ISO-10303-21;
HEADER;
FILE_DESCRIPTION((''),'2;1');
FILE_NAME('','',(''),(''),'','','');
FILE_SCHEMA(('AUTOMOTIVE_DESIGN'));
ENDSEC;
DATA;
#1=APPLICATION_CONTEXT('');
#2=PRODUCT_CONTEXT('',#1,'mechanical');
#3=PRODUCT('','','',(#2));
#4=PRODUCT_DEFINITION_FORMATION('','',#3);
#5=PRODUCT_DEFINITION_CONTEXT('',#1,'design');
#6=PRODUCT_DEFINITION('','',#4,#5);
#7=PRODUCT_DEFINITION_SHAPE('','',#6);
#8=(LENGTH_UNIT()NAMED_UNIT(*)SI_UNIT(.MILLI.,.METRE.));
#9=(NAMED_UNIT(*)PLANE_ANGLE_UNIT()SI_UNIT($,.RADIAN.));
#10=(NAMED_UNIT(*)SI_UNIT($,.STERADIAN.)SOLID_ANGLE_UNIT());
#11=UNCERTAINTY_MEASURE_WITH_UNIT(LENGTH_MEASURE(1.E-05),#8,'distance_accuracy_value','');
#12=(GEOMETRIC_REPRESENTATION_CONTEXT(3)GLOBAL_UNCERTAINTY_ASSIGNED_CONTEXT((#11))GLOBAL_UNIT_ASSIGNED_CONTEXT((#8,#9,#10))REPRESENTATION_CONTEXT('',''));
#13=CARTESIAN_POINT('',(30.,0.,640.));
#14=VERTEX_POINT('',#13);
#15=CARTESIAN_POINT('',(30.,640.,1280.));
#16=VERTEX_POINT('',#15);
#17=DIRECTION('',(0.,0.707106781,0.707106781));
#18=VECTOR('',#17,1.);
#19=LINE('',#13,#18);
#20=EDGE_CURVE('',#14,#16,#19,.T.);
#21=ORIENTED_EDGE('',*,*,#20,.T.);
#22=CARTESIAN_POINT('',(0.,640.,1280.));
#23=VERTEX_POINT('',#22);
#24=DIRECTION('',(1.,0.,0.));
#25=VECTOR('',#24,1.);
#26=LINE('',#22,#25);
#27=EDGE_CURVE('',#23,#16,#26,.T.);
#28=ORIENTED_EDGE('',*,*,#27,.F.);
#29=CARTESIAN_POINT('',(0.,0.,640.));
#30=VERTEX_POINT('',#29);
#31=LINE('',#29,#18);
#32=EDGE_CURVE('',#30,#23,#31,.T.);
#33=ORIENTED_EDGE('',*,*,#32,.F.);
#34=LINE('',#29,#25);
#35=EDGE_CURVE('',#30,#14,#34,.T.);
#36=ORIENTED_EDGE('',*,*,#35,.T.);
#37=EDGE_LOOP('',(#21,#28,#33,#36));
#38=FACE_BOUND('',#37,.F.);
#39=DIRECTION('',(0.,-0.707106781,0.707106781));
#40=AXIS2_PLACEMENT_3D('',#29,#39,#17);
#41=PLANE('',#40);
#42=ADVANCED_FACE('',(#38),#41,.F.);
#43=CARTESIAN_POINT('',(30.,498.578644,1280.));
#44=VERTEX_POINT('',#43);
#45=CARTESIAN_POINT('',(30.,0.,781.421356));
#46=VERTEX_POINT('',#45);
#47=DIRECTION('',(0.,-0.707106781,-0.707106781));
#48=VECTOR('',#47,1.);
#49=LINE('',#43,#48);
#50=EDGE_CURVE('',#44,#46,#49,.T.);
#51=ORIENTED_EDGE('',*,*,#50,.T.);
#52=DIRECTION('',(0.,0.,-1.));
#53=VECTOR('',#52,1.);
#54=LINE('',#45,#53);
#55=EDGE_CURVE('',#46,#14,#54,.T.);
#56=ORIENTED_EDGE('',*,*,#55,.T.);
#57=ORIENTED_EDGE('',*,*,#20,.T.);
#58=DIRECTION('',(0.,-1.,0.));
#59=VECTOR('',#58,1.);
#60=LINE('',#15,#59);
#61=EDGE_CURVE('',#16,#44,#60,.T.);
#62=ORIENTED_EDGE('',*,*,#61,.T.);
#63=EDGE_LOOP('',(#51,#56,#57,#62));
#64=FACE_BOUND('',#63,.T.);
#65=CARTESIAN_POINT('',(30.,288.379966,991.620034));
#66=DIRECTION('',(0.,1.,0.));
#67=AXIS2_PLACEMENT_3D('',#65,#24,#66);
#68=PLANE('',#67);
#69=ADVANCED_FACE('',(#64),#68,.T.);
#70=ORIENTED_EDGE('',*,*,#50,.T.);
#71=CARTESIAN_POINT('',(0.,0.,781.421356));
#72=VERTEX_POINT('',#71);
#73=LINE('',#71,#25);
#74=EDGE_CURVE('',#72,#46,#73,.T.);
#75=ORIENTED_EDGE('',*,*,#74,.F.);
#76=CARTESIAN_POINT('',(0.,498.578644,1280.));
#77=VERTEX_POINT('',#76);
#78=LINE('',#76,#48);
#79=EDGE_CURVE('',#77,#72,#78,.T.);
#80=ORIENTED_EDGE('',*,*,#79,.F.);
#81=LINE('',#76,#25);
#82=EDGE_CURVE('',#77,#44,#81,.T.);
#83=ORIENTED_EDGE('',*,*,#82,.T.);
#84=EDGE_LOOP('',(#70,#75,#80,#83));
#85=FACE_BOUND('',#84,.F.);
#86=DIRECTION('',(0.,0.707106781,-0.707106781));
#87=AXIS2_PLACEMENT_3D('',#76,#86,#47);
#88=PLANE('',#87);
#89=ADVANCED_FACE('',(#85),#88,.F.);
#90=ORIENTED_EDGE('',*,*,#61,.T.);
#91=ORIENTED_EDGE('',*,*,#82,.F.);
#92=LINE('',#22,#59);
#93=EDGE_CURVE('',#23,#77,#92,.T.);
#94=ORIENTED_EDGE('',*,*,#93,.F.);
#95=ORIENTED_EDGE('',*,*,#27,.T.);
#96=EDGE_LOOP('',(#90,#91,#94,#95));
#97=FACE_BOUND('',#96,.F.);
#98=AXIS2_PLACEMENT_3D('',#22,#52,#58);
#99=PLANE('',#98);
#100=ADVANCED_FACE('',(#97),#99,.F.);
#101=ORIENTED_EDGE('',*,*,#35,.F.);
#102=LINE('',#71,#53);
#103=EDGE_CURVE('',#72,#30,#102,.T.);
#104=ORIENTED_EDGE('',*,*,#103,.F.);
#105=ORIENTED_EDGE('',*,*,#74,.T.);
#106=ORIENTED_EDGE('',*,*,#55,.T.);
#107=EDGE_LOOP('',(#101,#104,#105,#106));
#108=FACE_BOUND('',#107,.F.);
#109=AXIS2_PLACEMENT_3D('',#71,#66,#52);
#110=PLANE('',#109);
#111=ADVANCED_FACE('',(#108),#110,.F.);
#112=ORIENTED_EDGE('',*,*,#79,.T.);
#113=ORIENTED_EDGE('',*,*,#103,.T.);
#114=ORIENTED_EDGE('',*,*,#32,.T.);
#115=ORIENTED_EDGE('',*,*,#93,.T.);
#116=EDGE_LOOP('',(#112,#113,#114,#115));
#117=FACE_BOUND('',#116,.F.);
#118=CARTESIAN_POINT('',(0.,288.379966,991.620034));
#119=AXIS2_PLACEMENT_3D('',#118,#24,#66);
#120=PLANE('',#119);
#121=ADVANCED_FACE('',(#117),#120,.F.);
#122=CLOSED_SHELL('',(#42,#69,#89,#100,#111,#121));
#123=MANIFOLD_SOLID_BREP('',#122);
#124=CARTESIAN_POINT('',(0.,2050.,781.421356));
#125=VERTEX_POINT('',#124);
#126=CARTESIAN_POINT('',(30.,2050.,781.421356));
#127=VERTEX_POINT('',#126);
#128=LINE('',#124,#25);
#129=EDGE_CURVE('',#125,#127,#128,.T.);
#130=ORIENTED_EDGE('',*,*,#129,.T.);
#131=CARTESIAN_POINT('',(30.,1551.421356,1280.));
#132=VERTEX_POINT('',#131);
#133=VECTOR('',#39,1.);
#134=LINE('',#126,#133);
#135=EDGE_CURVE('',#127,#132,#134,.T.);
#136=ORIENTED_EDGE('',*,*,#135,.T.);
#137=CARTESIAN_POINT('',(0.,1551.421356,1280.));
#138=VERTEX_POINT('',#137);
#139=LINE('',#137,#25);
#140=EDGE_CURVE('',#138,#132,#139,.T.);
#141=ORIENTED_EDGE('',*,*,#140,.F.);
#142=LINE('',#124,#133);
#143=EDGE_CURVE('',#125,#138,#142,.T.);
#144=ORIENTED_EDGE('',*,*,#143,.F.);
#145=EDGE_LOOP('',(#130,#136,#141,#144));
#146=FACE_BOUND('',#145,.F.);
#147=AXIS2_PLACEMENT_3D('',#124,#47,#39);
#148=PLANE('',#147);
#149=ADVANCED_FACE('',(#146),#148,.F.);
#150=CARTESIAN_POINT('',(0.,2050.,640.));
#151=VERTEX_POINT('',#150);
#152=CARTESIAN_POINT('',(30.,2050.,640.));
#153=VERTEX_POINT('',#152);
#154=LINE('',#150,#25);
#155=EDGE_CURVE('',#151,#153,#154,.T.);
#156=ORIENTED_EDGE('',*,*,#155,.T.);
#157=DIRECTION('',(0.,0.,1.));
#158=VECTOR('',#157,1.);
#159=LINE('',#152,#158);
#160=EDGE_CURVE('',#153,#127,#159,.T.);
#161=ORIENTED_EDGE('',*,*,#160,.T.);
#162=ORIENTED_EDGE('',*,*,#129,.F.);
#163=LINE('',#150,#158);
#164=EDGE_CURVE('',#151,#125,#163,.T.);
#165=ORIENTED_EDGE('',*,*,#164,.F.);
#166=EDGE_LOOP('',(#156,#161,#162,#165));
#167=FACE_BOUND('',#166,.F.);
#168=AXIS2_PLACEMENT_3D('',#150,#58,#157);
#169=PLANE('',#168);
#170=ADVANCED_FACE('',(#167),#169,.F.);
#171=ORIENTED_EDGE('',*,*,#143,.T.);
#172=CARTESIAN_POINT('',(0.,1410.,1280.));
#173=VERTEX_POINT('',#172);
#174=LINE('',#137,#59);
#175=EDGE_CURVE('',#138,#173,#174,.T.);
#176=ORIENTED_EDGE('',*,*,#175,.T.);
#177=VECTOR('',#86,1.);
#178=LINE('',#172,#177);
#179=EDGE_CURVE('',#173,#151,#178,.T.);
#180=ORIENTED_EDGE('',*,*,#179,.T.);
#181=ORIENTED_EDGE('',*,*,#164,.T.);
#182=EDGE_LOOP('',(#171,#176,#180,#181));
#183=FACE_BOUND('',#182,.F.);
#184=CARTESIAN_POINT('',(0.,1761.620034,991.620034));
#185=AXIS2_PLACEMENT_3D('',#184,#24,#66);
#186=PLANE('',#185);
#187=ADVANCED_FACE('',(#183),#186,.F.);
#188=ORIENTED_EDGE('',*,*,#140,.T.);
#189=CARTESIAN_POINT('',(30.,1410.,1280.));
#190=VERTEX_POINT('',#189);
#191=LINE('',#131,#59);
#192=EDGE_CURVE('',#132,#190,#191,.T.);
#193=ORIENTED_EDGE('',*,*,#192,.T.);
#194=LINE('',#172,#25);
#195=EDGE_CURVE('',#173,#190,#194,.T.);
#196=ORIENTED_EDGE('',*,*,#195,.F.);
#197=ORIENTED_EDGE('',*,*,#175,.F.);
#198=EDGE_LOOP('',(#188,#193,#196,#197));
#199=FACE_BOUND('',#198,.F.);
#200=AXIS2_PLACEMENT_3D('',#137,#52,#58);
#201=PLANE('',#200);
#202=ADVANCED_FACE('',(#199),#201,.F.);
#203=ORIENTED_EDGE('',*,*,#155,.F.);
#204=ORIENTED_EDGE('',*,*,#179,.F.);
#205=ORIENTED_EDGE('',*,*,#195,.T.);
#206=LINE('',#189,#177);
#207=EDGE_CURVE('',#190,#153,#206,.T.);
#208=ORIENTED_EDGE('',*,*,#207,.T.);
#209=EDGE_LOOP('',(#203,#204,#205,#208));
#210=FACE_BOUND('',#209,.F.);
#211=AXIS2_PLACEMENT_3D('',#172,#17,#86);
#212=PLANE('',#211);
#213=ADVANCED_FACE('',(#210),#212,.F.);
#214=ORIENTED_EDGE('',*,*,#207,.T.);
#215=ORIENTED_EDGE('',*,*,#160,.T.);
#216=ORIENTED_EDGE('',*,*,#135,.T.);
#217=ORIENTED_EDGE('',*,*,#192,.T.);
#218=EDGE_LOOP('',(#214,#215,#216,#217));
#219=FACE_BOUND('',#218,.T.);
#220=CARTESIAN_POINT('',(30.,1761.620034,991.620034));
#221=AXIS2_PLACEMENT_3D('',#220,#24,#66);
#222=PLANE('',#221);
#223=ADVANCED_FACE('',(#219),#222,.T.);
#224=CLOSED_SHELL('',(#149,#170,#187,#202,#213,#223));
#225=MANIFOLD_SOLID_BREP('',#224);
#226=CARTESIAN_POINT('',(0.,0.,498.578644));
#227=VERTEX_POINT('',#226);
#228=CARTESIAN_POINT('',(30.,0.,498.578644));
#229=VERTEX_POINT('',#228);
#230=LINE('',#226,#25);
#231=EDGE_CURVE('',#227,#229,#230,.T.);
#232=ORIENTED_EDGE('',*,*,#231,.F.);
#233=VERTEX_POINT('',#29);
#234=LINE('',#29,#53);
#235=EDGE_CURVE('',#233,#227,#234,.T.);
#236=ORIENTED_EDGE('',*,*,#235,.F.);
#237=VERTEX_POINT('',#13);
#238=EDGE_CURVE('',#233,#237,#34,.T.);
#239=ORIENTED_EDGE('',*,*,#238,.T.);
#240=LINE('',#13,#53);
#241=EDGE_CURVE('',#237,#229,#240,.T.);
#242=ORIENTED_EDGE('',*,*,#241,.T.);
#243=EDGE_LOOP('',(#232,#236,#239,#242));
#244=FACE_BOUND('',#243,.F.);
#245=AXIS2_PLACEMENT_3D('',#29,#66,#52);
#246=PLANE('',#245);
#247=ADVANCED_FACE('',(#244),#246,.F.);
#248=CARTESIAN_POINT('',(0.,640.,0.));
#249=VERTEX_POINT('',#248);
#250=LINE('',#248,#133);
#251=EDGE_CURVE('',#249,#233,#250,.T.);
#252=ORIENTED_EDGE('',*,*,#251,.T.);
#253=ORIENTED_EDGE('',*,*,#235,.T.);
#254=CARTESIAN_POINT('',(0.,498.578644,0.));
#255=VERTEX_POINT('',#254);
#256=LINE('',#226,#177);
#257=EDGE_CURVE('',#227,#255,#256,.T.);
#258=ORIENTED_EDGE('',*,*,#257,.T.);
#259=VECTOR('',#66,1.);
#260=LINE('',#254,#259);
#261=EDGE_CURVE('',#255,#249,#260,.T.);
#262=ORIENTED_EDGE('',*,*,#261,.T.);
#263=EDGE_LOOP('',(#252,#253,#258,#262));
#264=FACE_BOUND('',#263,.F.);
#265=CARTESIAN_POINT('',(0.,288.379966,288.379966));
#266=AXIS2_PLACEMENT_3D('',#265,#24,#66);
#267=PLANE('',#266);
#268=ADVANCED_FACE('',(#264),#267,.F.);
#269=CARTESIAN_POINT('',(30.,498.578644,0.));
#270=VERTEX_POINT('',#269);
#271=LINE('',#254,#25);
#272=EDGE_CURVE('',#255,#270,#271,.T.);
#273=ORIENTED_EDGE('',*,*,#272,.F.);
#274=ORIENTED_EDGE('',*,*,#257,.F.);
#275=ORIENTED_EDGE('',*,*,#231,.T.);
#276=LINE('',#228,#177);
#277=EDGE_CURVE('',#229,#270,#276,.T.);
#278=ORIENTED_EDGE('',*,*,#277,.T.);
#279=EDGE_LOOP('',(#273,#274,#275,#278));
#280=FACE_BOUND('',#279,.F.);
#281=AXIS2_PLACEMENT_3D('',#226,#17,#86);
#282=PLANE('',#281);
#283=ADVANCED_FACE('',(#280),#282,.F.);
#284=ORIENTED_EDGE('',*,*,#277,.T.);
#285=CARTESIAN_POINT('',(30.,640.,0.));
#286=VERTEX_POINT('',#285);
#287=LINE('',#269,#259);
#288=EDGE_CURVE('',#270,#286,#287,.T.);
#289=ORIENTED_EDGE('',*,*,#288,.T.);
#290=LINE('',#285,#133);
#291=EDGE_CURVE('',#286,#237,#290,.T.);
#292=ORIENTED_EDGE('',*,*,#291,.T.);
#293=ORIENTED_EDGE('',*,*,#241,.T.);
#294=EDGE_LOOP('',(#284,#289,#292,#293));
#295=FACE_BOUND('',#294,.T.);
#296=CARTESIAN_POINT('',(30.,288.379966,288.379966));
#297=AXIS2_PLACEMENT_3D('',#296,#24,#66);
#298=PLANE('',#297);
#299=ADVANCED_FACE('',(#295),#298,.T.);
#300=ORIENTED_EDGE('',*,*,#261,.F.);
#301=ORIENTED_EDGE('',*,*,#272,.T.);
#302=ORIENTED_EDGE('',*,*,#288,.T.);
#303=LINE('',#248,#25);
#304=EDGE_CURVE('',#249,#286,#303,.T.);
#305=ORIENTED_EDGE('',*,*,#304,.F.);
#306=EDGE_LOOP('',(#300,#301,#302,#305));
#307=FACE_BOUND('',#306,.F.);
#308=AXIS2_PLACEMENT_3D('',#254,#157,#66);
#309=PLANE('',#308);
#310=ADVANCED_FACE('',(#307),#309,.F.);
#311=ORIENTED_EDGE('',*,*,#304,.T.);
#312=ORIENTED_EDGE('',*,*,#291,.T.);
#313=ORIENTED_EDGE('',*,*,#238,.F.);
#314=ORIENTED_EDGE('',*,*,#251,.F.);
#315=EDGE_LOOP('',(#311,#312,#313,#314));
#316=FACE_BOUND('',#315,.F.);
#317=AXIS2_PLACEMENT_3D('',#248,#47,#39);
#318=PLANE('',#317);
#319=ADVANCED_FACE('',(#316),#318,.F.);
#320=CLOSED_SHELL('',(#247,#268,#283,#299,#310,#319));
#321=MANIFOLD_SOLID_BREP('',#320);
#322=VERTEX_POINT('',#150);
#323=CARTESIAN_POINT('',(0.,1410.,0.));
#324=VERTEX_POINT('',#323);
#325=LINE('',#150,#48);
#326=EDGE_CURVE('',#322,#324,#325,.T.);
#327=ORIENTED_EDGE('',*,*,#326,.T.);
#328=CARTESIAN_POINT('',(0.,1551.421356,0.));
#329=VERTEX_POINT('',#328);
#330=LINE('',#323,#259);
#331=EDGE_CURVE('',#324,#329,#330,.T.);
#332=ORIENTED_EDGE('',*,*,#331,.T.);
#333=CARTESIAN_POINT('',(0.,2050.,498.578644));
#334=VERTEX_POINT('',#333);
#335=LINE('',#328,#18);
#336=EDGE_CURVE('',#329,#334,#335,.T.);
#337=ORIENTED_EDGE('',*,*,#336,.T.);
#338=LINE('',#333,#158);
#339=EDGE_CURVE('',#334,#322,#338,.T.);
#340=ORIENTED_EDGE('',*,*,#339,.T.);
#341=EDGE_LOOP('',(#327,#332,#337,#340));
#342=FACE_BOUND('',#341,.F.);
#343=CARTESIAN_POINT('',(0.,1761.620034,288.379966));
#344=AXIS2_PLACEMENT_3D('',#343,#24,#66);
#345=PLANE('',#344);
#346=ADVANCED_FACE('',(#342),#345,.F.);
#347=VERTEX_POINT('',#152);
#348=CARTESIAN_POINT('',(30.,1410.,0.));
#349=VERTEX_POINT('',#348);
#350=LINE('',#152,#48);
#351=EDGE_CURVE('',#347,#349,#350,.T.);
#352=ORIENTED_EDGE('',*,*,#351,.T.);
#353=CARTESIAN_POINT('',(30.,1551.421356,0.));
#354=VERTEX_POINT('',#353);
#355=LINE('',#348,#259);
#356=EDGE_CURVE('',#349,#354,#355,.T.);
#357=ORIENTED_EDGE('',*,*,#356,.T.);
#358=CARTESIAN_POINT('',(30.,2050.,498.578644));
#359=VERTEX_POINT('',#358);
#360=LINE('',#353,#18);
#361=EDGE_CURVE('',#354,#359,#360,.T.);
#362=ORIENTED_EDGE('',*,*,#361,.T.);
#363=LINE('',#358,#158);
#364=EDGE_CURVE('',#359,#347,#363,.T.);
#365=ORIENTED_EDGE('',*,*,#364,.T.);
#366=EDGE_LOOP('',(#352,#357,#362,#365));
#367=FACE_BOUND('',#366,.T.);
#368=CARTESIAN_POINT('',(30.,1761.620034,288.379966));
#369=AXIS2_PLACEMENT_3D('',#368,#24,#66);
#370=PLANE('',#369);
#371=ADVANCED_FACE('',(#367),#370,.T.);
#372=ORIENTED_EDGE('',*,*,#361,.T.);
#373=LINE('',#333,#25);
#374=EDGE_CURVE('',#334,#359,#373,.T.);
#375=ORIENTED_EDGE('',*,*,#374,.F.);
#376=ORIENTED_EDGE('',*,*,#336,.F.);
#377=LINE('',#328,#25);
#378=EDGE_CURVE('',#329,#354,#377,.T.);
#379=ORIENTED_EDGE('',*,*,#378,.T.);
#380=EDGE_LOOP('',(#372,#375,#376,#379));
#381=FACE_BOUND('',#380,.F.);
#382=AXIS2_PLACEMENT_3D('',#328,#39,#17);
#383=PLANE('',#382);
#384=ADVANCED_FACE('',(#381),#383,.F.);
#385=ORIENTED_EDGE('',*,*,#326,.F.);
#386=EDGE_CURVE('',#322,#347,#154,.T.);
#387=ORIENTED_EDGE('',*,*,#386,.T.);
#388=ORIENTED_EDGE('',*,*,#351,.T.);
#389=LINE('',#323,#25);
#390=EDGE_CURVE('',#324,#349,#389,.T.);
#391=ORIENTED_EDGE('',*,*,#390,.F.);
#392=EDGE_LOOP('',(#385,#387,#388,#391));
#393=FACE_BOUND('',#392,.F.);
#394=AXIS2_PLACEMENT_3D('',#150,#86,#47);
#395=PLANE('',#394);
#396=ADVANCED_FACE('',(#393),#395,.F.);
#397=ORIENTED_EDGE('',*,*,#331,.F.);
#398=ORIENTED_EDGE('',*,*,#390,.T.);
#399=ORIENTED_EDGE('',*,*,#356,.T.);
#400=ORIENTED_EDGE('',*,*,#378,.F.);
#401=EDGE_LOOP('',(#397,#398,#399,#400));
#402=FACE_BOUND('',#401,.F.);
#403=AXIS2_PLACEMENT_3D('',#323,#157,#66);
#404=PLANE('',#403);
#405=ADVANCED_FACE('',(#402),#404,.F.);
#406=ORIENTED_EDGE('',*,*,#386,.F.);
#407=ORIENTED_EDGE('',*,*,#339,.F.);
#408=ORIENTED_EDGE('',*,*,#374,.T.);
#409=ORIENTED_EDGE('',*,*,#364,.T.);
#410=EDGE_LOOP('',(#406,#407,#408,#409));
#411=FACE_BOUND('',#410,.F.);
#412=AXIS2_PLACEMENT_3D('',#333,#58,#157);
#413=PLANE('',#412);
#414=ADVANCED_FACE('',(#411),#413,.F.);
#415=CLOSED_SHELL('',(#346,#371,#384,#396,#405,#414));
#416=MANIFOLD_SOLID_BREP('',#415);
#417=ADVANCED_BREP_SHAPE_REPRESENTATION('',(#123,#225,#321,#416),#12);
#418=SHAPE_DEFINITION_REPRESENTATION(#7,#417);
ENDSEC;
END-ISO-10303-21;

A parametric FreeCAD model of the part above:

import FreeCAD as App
import Part
import Sketcher
Q = App.Units.Quantity


def add_polygon(sketch, points):
    """Adds a closed chain of lines whose ends are joined by coincident constraints."""
    first, n = sketch.GeometryCount, len(points)
    for a, b in zip(points, points[1:] + points[:1]):
        sketch.addGeometry(Part.LineSegment(App.Vector(*a, 0), App.Vector(*b, 0)), False)
    for i in range(n):
        sketch.addConstraint(Sketcher.Constraint("Coincident", first + i, 2, first + (i + 1) % n, 1))

doc = App.newDocument("Part")
params = doc.addObject("Spreadsheet::Sheet", "Params")
for row, (alias, value) in enumerate([
    ("pad1_length", "30 mm"),
], start=1):
    params.set(f"A{row}", alias)
    params.set(f"B{row}", "=" + value)
    params.setAlias(f"B{row}", alias)

body = doc.addObject("PartDesign::Body", "Body")
body.AllowCompound = True

# Sketch on YZ plane
sketch1 = body.newObject("Sketcher::SketchObject", "Sketch")
sketch1.AttachmentSupport = (doc.getObject("YZ_Plane"), [""])
sketch1.MapMode = "FlatFace"
add_polygon(sketch1, [(0, 781.421356), (0, 640), (640, 1280), (498.578644, 1280)])  # lines 0-3
add_polygon(sketch1, [(0, 640), (0, 498.578644), (498.578644, 0), (640, 0)])  # lines 4-7
add_polygon(sketch1, [(2050, 498.578644), (2050, 640), (1410, 0), (1551.421356, 0)])  # lines 8-11
add_polygon(sketch1, [(2050, 781.421356), (1551.421356, 1280), (1410, 1280), (2050, 640)])  # lines 12-15
sketch1.addConstraint(Sketcher.Constraint("Vertical", 0))
sketch1.addConstraint(Sketcher.Constraint("Horizontal", 2))
sketch1.addConstraint(Sketcher.Constraint("Vertical", 4))
sketch1.addConstraint(Sketcher.Constraint("Horizontal", 6))
sketch1.addConstraint(Sketcher.Constraint("Vertical", 8))
sketch1.addConstraint(Sketcher.Constraint("Horizontal", 10))
sketch1.addConstraint(Sketcher.Constraint("Horizontal", 13))
sketch1.addConstraint(Sketcher.Constraint("Vertical", 15))
sketch1.addConstraint(Sketcher.Constraint("Coincident", 7, 2, 0, 2))
sketch1.addConstraint(Sketcher.Constraint("Coincident", 14, 2, 8, 2))
sketch1.addConstraint(Sketcher.Constraint("PointOnObject", 0, 2, -2))
sketch1.addConstraint(Sketcher.Constraint("PointOnObject", 5, 2, -1))
sketch1.addConstraint(Sketcher.Constraint("PointOnObject", 9, 2, -1))
sketch1.addConstraint(Sketcher.Constraint("Parallel", 1, 3))
sketch1.addConstraint(Sketcher.Constraint("Perpendicular", 3, 5))
sketch1.addConstraint(Sketcher.Constraint("Parallel", 5, 7))
sketch1.addConstraint(Sketcher.Constraint("Perpendicular", 7, 9))
sketch1.addConstraint(Sketcher.Constraint("Parallel", 9, 11))
sketch1.addConstraint(Sketcher.Constraint("Perpendicular", 11, 12))
sketch1.addConstraint(Sketcher.Constraint("Parallel", 12, 14))
sketch1.addConstraint(Sketcher.Constraint("Horizontal", 7, 2, 8, 2))
sketch1.addConstraint(Sketcher.Constraint("Horizontal", 4, 2, 11, 2))
sketch1.addConstraint(Sketcher.Constraint("Horizontal", 2, 2, 12, 2))
sketch1.addConstraint(Sketcher.Constraint("Horizontal", 3, 2, 15, 2))
sketch1.addConstraint(Sketcher.Constraint("Vertical", 2, 2, 5, 2))
sketch1.addConstraint(Sketcher.Constraint("Vertical", 1, 2, 6, 2))
sketch1.addConstraint(Sketcher.Constraint("Vertical", 10, 2, 12, 2))
sketch1.addConstraint(Sketcher.Constraint("DistanceY", -1, 1, 0, 2, Q("640 mm")))
sketch1.addConstraint(Sketcher.Constraint("DistanceX", -1, 1, 8, 2, Q("2050 mm")))
sketch1.addConstraint(Sketcher.Constraint("Distance", 3, Q("705.09668 mm")))
pad1 = body.newObject("PartDesign::Pad", "Pad")
pad1.Profile = sketch1
pad1.setExpression("Length", "Params.pad1_length")

doc.recompute()
